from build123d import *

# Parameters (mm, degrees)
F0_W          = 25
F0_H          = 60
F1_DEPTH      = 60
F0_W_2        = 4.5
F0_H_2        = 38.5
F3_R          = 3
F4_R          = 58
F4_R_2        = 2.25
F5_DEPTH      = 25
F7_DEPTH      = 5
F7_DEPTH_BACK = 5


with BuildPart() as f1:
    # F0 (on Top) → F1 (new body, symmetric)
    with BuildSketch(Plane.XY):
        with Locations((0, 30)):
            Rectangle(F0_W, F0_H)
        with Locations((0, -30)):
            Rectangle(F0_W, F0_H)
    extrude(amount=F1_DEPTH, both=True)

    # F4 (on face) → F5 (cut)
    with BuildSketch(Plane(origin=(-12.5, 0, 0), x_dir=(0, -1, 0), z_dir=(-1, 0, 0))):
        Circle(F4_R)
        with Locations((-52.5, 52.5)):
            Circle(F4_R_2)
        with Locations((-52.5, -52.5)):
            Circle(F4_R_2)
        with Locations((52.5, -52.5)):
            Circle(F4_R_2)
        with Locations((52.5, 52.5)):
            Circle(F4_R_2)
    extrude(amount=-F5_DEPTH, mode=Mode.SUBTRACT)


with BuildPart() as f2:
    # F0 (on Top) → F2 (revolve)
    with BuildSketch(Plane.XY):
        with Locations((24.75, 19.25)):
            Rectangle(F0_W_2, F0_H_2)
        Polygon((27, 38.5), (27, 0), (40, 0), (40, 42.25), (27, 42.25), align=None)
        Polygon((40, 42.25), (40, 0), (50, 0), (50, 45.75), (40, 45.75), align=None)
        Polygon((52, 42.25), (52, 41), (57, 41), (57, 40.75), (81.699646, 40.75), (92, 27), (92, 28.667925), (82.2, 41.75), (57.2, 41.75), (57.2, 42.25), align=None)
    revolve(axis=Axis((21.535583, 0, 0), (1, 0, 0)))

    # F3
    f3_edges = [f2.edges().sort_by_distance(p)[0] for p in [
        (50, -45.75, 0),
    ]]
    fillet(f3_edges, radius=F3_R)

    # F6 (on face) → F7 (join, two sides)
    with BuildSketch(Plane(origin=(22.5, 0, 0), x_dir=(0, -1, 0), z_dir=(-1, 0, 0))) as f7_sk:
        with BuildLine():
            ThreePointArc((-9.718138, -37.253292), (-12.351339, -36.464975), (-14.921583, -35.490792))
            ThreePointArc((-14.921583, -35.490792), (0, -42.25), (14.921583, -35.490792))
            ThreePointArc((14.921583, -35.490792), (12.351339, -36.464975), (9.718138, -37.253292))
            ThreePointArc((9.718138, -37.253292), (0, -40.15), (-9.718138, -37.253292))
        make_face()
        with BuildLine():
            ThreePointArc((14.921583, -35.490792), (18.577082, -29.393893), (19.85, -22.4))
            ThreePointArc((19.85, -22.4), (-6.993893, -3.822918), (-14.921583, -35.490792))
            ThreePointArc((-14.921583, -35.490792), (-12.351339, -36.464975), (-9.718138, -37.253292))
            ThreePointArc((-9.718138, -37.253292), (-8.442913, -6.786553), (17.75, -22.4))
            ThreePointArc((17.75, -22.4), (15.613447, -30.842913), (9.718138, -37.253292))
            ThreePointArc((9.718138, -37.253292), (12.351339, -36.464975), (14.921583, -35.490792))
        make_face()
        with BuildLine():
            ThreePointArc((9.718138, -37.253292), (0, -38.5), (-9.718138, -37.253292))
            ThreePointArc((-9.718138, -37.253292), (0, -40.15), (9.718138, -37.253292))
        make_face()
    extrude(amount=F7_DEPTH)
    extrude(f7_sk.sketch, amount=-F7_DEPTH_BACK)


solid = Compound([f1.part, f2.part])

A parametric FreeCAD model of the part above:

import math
import FreeCAD as App
import Part
import Sketcher
from FreeCAD import Vector
Q = App.Units.Quantity


def edges_at(feature, points):
    """Names of the edges that pass closest to the given points."""
    edges = feature.Shape.Edges
    near = lambda p: min(range(len(edges)), key=lambda i: edges[i].distToShape(Part.Vertex(*p))[0])
    return sorted({f"Edge{near(p) + 1}" for p in points})

doc = App.newDocument("Part")
params = doc.addObject("Spreadsheet::Sheet", "Params")
for row, (alias, value) in enumerate([
    ("sketch1_width", "25 mm"),
    ("sketch1_height", "120 mm"),
    ("pad1_length", "120 mm"),
    ("sketch2_diameter", "116 mm"),
    ("sketch2_diameter2", "4.5 mm"),
    ("pocket1_length", "25 mm"),
    ("sketch3_width", "10 mm"),
    ("sketch3_width2", "13 mm"),
    ("sketch3_width3", "5 mm"),
    ("sketch3_width4", "25 mm"),
    ("sketch3_width5", "27.5 mm"),
    ("revolution_angle", "360 deg"),
    ("fillet_radius", "3 mm"),
    ("sketch4_radius", "19.849998 mm"),
    ("sketch4_radius2", "17.75 mm"),
    ("pad2_length", "5 mm"),
    ("pad2_length2", "5 mm"),
], start=1):
    params.set(f"A{row}", alias)
    params.set(f"B{row}", "=" + value)
    params.setAlias(f"B{row}", alias)

body = doc.addObject("PartDesign::Body", "Body")

# Sketch on XY plane
sketch1 = doc.addObject("Sketcher::SketchObject", "Sketch")
body.addObject(sketch1)
sketch1.AttachmentSupport = (doc.XY_Plane, [""])
sketch1.MapMode = "FlatFace"
sketch1.addGeometry(Part.LineSegment(Vector(-12, 60, 0), Vector(-12, -60, 0)), False)
sketch1.addGeometry(Part.LineSegment(Vector(-12, -60, 0), Vector(12, -60, 0)), False)
sketch1.addGeometry(Part.LineSegment(Vector(12, -60, 0), Vector(12, 60, 0)), False)
sketch1.addGeometry(Part.LineSegment(Vector(12, 60, 0), Vector(-12, 60, 0)), False)
sketch1.addConstraint(Sketcher.Constraint("Coincident", 0, 2, 1, 1))
sketch1.addConstraint(Sketcher.Constraint("Coincident", 1, 2, 2, 1))
sketch1.addConstraint(Sketcher.Constraint("Coincident", 2, 2, 3, 1))
sketch1.addConstraint(Sketcher.Constraint("Coincident", 3, 2, 0, 1))
sketch1.addConstraint(Sketcher.Constraint("Vertical", 0))
sketch1.addConstraint(Sketcher.Constraint("Horizontal", 1))
sketch1.addConstraint(Sketcher.Constraint("Vertical", 2))
sketch1.addConstraint(Sketcher.Constraint("Horizontal", 3))
sketch1.addConstraint(Sketcher.Constraint("Symmetric", 0, 2, 2, 2, -1, 1))
sketch1.addConstraint(Sketcher.Constraint("DistanceX", 1, 1, 1, 2, Q("25 mm")))
sketch1.addConstraint(Sketcher.Constraint("DistanceY", 0, 2, 0, 1, Q("120 mm")))
sketch1.setExpression("Constraints[9]", "Params.sketch1_width")
sketch1.setExpression("Constraints[10]", "Params.sketch1_height")
pad1 = doc.addObject("PartDesign::Pad", "Pad")
body.addObject(pad1)
pad1.Profile = sketch1
pad1.setExpression("Length", "Params.pad1_length")
pad1.Midplane = True

# Sketch on YZ plane
sketch2 = doc.addObject("Sketcher::SketchObject", "Sketch001")
body.addObject(sketch2)
sketch2.AttachmentSupport = (doc.YZ_Plane, [""])
sketch2.MapMode = "FlatFace"
sketch2.AttachmentOffset = App.Placement(Vector(0, 0, -12.5), App.Rotation())
sketch2.addGeometry(Part.Circle(Vector(0, 0, 0), Vector(0, 0, 1), 58), False)
sketch2.addGeometry(Part.Circle(Vector(52.5, 52.5, 0), Vector(0, 0, 1), 2.2), False)
sketch2.addGeometry(Part.Circle(Vector(52.5, -52.5, 0), Vector(0, 0, 1), 2.2), False)
sketch2.addGeometry(Part.Circle(Vector(-52.5, -52.5, 0), Vector(0, 0, 1), 2.2), False)
sketch2.addGeometry(Part.Circle(Vector(-52.5, 52.5, 0), Vector(0, 0, 1), 2.2), False)
sketch2.addConstraint(Sketcher.Constraint("Coincident", 0, 3, -1, 1))
sketch2.addConstraint(Sketcher.Constraint("Equal", 1, 2))
sketch2.addConstraint(Sketcher.Constraint("Equal", 2, 3))
sketch2.addConstraint(Sketcher.Constraint("Equal", 3, 4))
sketch2.addConstraint(Sketcher.Constraint("Symmetric", 1, 3, 3, 3, -1, 1))
sketch2.addConstraint(Sketcher.Constraint("Symmetric", 2, 3, 4, 3, -1, 1))
sketch2.addConstraint(Sketcher.Constraint("Symmetric", 2, 3, 3, 3, -2))
sketch2.addConstraint(Sketcher.Constraint("Diameter", 0, Q("116 mm")))
sketch2.addConstraint(Sketcher.Constraint("Diameter", 1, Q("4.5 mm")))
sketch2.addConstraint(Sketcher.Constraint("DistanceY", 2, 3, 1, 3, Q("105 mm")))
sketch2.addConstraint(Sketcher.Constraint("DistanceX", 3, 3, 2, 3, Q("105 mm")))
sketch2.setExpression("Constraints[7]", "Params.sketch2_diameter")
sketch2.setExpression("Constraints[8]", "Params.sketch2_diameter2")
pocket1 = doc.addObject("PartDesign::Pocket", "Pocket")
body.addObject(pocket1)
pocket1.Profile = sketch2
pocket1.setExpression("Length", "Params.pocket1_length")
pocket1.Reversed = True
body2 = doc.addObject("PartDesign::Body", "Body001")
body2.AllowCompound = True

# Sketch on XY plane
sketch3 = doc.addObject("Sketcher::SketchObject", "Sketch002")
body2.addObject(sketch3)
sketch3.AttachmentSupport = (doc.getObject("XY_Plane001"), [""])
sketch3.MapMode = "FlatFace"
sketch3.addGeometry(Part.LineSegment(Vector(22.5, 38.5, 0), Vector(22.5, 0, 0)), False)
sketch3.addGeometry(Part.LineSegment(Vector(22.5, 0, 0), Vector(50, 0, 0)), False)
sketch3.addGeometry(Part.LineSegment(Vector(50, 0, 0), Vector(50, 45.75, 0)), False)
sketch3.addGeometry(Part.LineSegment(Vector(50, 45.75, 0), Vector(40, 45.75, 0)), False)
sketch3.addGeometry(Part.LineSegment(Vector(40, 45.75, 0), Vector(40, 42.25, 0)), False)
sketch3.addGeometry(Part.LineSegment(Vector(40, 42.25, 0), Vector(27, 42.25, 0)), False)
sketch3.addGeometry(Part.LineSegment(Vector(27, 42.25, 0), Vector(27, 38.5, 0)), False)
sketch3.addGeometry(Part.LineSegment(Vector(27, 38.5, 0), Vector(22.5, 38.5, 0)), False)
sketch3.addGeometry(Part.LineSegment(Vector(52, 42.25, 0), Vector(52, 41, 0)), False)
sketch3.addGeometry(Part.LineSegment(Vector(52, 41, 0), Vector(57, 41, 0)), False)
sketch3.addGeometry(Part.LineSegment(Vector(57, 41, 0), Vector(57, 40.75, 0)), False)
sketch3.addGeometry(Part.LineSegment(Vector(57, 40.75, 0), Vector(81.7, 40.75, 0)), False)
sketch3.addGeometry(Part.LineSegment(Vector(81.7, 40.75, 0), Vector(92, 27, 0)), False)
sketch3.addGeometry(Part.LineSegment(Vector(92, 27, 0), Vector(92, 28.67, 0)), False)
sketch3.addGeometry(Part.LineSegment(Vector(92, 28.67, 0), Vector(82.2, 41.75, 0)), False)
sketch3.addGeometry(Part.LineSegment(Vector(82.2, 41.75, 0), Vector(57.2, 41.75, 0)), False)
sketch3.addGeometry(Part.LineSegment(Vector(57.2, 41.75, 0), Vector(57.2, 42.25, 0)), False)
sketch3.addGeometry(Part.LineSegment(Vector(57.2, 42.25, 0), Vector(52, 42.25, 0)), False)
sketch3.addConstraint(Sketcher.Constraint("Coincident", 0, 2, 1, 1))
sketch3.addConstraint(Sketcher.Constraint("Coincident", 1, 2, 2, 1))
sketch3.addConstraint(Sketcher.Constraint("Coincident", 2, 2, 3, 1))
sketch3.addConstraint(Sketcher.Constraint("Coincident", 3, 2, 4, 1))
sketch3.addConstraint(Sketcher.Constraint("Coincident", 4, 2, 5, 1))
sketch3.addConstraint(Sketcher.Constraint("Coincident", 5, 2, 6, 1))
sketch3.addConstraint(Sketcher.Constraint("Coincident", 6, 2, 7, 1))
sketch3.addConstraint(Sketcher.Constraint("Coincident", 7, 2, 0, 1))
sketch3.addConstraint(Sketcher.Constraint("Coincident", 8, 2, 9, 1))
sketch3.addConstraint(Sketcher.Constraint("Coincident", 9, 2, 10, 1))
sketch3.addConstraint(Sketcher.Constraint("Coincident", 10, 2, 11, 1))
sketch3.addConstraint(Sketcher.Constraint("Coincident", 11, 2, 12, 1))
sketch3.addConstraint(Sketcher.Constraint("Coincident", 12, 2, 13, 1))
sketch3.addConstraint(Sketcher.Constraint("Coincident", 13, 2, 14, 1))
sketch3.addConstraint(Sketcher.Constraint("Coincident", 14, 2, 15, 1))
sketch3.addConstraint(Sketcher.Constraint("Coincident", 15, 2, 16, 1))
sketch3.addConstraint(Sketcher.Constraint("Coincident", 16, 2, 17, 1))
sketch3.addConstraint(Sketcher.Constraint("Coincident", 17, 2, 8, 1))
sketch3.addConstraint(Sketcher.Constraint("Vertical", 0))
sketch3.addConstraint(Sketcher.Constraint("Horizontal", 1))
sketch3.addConstraint(Sketcher.Constraint("Vertical", 2))
sketch3.addConstraint(Sketcher.Constraint("Horizontal", 3))
sketch3.addConstraint(Sketcher.Constraint("Vertical", 4))
sketch3.addConstraint(Sketcher.Constraint("Horizontal", 5))
sketch3.addConstraint(Sketcher.Constraint("Vertical", 6))
sketch3.addConstraint(Sketcher.Constraint("Horizontal", 7))
sketch3.addConstraint(Sketcher.Constraint("Vertical", 8))
sketch3.addConstraint(Sketcher.Constraint("Horizontal", 9))
sketch3.addConstraint(Sketcher.Constraint("Vertical", 10))
sketch3.addConstraint(Sketcher.Constraint("Horizontal", 11))
sketch3.addConstraint(Sketcher.Constraint("Vertical", 13))
sketch3.addConstraint(Sketcher.Constraint("Horizontal", 15))
sketch3.addConstraint(Sketcher.Constraint("Vertical", 16))
sketch3.addConstraint(Sketcher.Constraint("Horizontal", 17))
sketch3.addConstraint(Sketcher.Constraint("PointOnObject", 0, 2, -1))
sketch3.addConstraint(Sketcher.Constraint("Parallel", 12, 14))
sketch3.addConstraint(Sketcher.Constraint("Horizontal", 5, 2, 16, 2))
sketch3.addConstraint(Sketcher.Constraint("DistanceX", 3, 2, 3, 1, Q("10 mm")))
sketch3.addConstraint(Sketcher.Constraint("DistanceX", 5, 2, 5, 1, Q("13 mm")))
sketch3.addConstraint(Sketcher.Constraint("DistanceX", 9, 1, 9, 2, Q("5 mm")))
sketch3.addConstraint(Sketcher.Constraint("DistanceX", 15, 2, 15, 1, Q("25 mm")))
sketch3.addConstraint(Sketcher.Constraint("DistanceX", 1, 1, 1, 2, Q("27.5 mm")))
sketch3.addConstraint(Sketcher.Constraint("DistanceX", 17, 2, 17, 1, Q("5.2 mm")))
sketch3.addConstraint(Sketcher.Constraint("DistanceY", 0, 2, 0, 1, Q("38.5 mm")))
sketch3.addConstraint(Sketcher.Constraint("DistanceY", 4, 2, 4, 1, Q("3.5 mm")))
sketch3.addConstraint(Sketcher.Constraint("DistanceY", 16, 1, 16, 2, Q("0.5 mm")))
sketch3.addConstraint(Sketcher.Constraint("DistanceX", -1, 1, 1, 2, Q("50 mm")))
sketch3.addConstraint(Sketcher.Constraint("DistanceX", -1, 1, 8, 2, Q("52 mm")))
sketch3.addConstraint(Sketcher.Constraint("DistanceY", -1, 1, 8, 2, Q("41 mm")))
sketch3.addConstraint(Sketcher.Constraint("DistanceX", -1, 1, 12, 2, Q("92 mm")))
sketch3.addConstraint(Sketcher.Constraint("DistanceY", -1, 1, 12, 2, Q("27 mm")))
sketch3.addConstraint(Sketcher.Constraint("DistanceY", 10, 2, 2, 2, Q("5 mm")))
sketch3.addConstraint(Sketcher.Constraint("DistanceY", 2, 1, 2, 2, Q("45.75 mm")))
sketch3.addConstraint(Sketcher.Constraint("DistanceX", 11, 1, 11, 2, Q("24.699646 mm")))
sketch3.setExpression("Constraints[37]", "Params.sketch3_width")
sketch3.setExpression("Constraints[38]", "Params.sketch3_width2")
sketch3.setExpression("Constraints[39]", "Params.sketch3_width3")
sketch3.setExpression("Constraints[40]", "Params.sketch3_width4")
sketch3.setExpression("Constraints[41]", "Params.sketch3_width5")
revolution = doc.addObject("PartDesign::Revolution", "Revolution")
body2.addObject(revolution)
revolution.Profile = sketch3
revolution.ReferenceAxis = (sketch3, ["H_Axis"])
revolution.setExpression("Angle", "Params.revolution_angle")
doc.recompute()

fillet = doc.addObject("PartDesign::Fillet", "Fillet")
body2.addObject(fillet)
fillet.Base = (revolution, edges_at(revolution, [(50, -45.75, 0)]))
fillet.setExpression("Radius", "Params.fillet_radius")

# Sketch on YZ plane
sketch4 = doc.addObject("Sketcher::SketchObject", "Sketch003")
body2.addObject(sketch4)
sketch4.AttachmentSupport = (doc.getObject("YZ_Plane001"), [""])
sketch4.MapMode = "FlatFace"
sketch4.AttachmentOffset = App.Placement(Vector(0, 0, 22.5), App.Rotation())
sketch4.addGeometry(Part.ArcOfCircle(Part.Circle(Vector(0, -22, 0), Vector(0, 0, 1), 20), math.radians(-139), math.radians(-41)), False)
sketch4.addGeometry(Part.ArcOfCircle(Part.Circle(Vector(0, -22, 0), Vector(0, 0, 1), 20), math.radians(180), math.radians(221)), False)
sketch4.addGeometry(Part.ArcOfCircle(Part.Circle(Vector(0, -22, 0), Vector(0, 0, 1), 20), math.radians(-41), math.radians(180)), False)
sketch4.addGeometry(Part.ArcOfCircle(Part.Circle(Vector(0, -22, 0), Vector(0, 0, 1), 18), math.radians(-57), math.radians(180)), False)
sketch4.addGeometry(Part.ArcOfCircle(Part.Circle(Vector(0, -22, 0), Vector(0, 0, 1), 18), math.radians(180), math.radians(237)), False)
sketch4.addGeometry(Part.ArcOfCircle(Part.Circle(Vector(0, 0, 0), Vector(0, 0, 1), 38), math.radians(-105), math.radians(-75)), False)
sketch4.addConstraint(Sketcher.Constraint("Tangent", 0, 1, 1, 2))
sketch4.addConstraint(Sketcher.Constraint("Tangent", 1, 1, 2, 2))
sketch4.addConstraint(Sketcher.Constraint("Tangent", 2, 1, 0, 2))
sketch4.addConstraint(Sketcher.Constraint("Tangent", 3, 2, 4, 1))
sketch4.addConstraint(Sketcher.Constraint("Coincident", 4, 2, 5, 1))
sketch4.addConstraint(Sketcher.Constraint("Coincident", 5, 2, 3, 1))
sketch4.addConstraint(Sketcher.Constraint("Coincident", 3, 3, 0, 3))
sketch4.addConstraint(Sketcher.Constraint("Symmetric", 0, 1, 2, 1, -2))
sketch4.addConstraint(Sketcher.Constraint("Symmetric", 4, 2, 5, 2, -2))
sketch4.addConstraint(Sketcher.Constraint("Horizontal", 4, 3, 1, 1))
sketch4.addConstraint(Sketcher.Constraint("Horizontal", 1, 1, 3, 2))
sketch4.addConstraint(Sketcher.Constraint("Radius", 0, Q("19.849998 mm")))
sketch4.addConstraint(Sketcher.Constraint("Radius", 3, Q("17.75 mm")))
sketch4.addConstraint(Sketcher.Constraint("DistanceY", 0, 3, -1, 1, Q("22.400002 mm")))
sketch4.addConstraint(Sketcher.Constraint("Radius", 5, Q("38.499988 mm")))
sketch4.addConstraint(Sketcher.Constraint("DistanceY", 4, 2, 0, 1, Q("1.7625 mm")))
sketch4.addConstraint(Sketcher.Constraint("DistanceY", 0, 1, -1, 1, Q("35.490792 mm")))
sketch4.setExpression("Constraints[11]", "Params.sketch4_radius")
sketch4.setExpression("Constraints[12]", "Params.sketch4_radius2")
pad2 = doc.addObject("PartDesign::Pad", "Pad001")
body2.addObject(pad2)
pad2.Profile = sketch4
pad2.Type = "TwoLengths"
pad2.setExpression("Length", "Params.pad2_length")
pad2.setExpression("Length2", "Params.pad2_length2")
pad2.Reversed = True

doc.recompute()
